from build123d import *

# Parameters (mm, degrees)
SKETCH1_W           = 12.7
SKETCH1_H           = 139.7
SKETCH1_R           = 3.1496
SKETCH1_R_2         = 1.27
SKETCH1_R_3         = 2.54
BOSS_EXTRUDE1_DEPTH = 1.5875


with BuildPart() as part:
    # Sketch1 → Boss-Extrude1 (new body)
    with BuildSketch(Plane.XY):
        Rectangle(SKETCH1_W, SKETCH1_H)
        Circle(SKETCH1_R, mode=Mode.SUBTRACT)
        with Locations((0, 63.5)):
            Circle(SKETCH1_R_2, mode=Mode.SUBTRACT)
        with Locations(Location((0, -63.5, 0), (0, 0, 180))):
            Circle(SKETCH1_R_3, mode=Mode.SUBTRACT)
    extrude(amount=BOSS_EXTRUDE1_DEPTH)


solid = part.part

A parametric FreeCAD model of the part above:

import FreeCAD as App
import Part
import Sketcher
from FreeCAD import Vector
Q = App.Units.Quantity

doc = App.newDocument("Part")
body = doc.addObject("PartDesign::Body", "Body")

# Sketch on XY plane
sketch1 = body.newObject("Sketcher::SketchObject", "Sketch")
sketch1.AttachmentSupport = (doc.getObject("XY_Plane"), [""])
sketch1.MapMode = "FlatFace"
sketch1.addGeometry([
    Part.LineSegment(Vector(-6.3, 69.8, 0), Vector(-6.3, -69.8, 0)),  # 0
    Part.LineSegment(Vector(-6.3, -69.8, 0), Vector(6.3, -69.8, 0)),  # 1
    Part.LineSegment(Vector(6.3, -69.8, 0), Vector(6.3, 69.8, 0)),  # 2
    Part.LineSegment(Vector(6.3, 69.8, 0), Vector(-6.3, 69.8, 0)),  # 3
    Part.Circle(Vector(0, -63.5, 0), Vector(0, 0, 1), 2.5),  # 4
    Part.Circle(Vector(0, 0, 0), Vector(0, 0, 1), 3.1),  # 5
    Part.Circle(Vector(0, 63.5, 0), Vector(0, 0, 1), 1.3),  # 6
], False)
sketch1.addConstraint([
    Sketcher.Constraint("Coincident", 0, 2, 1, 1),
    Sketcher.Constraint("Coincident", 1, 2, 2, 1),
    Sketcher.Constraint("Coincident", 2, 2, 3, 1),
    Sketcher.Constraint("Coincident", 3, 2, 0, 1),
    Sketcher.Constraint("Vertical", 0),
    Sketcher.Constraint("Horizontal", 1),
    Sketcher.Constraint("Vertical", 2),
    Sketcher.Constraint("Horizontal", 3),
    Sketcher.Constraint("Coincident", 5, 3, -1, 1),
    Sketcher.Constraint("Symmetric", 4, 3, 6, 3, -1, 1),
    Sketcher.Constraint("Symmetric", 0, 2, 2, 2, -1, 1),
    Sketcher.Constraint("PointOnObject", 4, 3, -2),
    Sketcher.Constraint("Diameter", 4, Q("0.2 in")),
    Sketcher.Constraint("Diameter", 6, Q("0.1 in")),
    Sketcher.Constraint("Diameter", 5, Q("0.248 in")),
    Sketcher.Constraint("DistanceX", 1, 1, 1, 2, Q("0.5 in")),
    Sketcher.Constraint("DistanceY", 0, 2, 0, 1, Q("5.5 in")),
    Sketcher.Constraint("DistanceY", 4, 3, 6, 3, Q("5 in")),
])
pad1 = body.newObject("PartDesign::Pad", "Pad")
pad1.Profile = sketch1
pad1.Length = Q("0.0625 in")

doc.recompute()
